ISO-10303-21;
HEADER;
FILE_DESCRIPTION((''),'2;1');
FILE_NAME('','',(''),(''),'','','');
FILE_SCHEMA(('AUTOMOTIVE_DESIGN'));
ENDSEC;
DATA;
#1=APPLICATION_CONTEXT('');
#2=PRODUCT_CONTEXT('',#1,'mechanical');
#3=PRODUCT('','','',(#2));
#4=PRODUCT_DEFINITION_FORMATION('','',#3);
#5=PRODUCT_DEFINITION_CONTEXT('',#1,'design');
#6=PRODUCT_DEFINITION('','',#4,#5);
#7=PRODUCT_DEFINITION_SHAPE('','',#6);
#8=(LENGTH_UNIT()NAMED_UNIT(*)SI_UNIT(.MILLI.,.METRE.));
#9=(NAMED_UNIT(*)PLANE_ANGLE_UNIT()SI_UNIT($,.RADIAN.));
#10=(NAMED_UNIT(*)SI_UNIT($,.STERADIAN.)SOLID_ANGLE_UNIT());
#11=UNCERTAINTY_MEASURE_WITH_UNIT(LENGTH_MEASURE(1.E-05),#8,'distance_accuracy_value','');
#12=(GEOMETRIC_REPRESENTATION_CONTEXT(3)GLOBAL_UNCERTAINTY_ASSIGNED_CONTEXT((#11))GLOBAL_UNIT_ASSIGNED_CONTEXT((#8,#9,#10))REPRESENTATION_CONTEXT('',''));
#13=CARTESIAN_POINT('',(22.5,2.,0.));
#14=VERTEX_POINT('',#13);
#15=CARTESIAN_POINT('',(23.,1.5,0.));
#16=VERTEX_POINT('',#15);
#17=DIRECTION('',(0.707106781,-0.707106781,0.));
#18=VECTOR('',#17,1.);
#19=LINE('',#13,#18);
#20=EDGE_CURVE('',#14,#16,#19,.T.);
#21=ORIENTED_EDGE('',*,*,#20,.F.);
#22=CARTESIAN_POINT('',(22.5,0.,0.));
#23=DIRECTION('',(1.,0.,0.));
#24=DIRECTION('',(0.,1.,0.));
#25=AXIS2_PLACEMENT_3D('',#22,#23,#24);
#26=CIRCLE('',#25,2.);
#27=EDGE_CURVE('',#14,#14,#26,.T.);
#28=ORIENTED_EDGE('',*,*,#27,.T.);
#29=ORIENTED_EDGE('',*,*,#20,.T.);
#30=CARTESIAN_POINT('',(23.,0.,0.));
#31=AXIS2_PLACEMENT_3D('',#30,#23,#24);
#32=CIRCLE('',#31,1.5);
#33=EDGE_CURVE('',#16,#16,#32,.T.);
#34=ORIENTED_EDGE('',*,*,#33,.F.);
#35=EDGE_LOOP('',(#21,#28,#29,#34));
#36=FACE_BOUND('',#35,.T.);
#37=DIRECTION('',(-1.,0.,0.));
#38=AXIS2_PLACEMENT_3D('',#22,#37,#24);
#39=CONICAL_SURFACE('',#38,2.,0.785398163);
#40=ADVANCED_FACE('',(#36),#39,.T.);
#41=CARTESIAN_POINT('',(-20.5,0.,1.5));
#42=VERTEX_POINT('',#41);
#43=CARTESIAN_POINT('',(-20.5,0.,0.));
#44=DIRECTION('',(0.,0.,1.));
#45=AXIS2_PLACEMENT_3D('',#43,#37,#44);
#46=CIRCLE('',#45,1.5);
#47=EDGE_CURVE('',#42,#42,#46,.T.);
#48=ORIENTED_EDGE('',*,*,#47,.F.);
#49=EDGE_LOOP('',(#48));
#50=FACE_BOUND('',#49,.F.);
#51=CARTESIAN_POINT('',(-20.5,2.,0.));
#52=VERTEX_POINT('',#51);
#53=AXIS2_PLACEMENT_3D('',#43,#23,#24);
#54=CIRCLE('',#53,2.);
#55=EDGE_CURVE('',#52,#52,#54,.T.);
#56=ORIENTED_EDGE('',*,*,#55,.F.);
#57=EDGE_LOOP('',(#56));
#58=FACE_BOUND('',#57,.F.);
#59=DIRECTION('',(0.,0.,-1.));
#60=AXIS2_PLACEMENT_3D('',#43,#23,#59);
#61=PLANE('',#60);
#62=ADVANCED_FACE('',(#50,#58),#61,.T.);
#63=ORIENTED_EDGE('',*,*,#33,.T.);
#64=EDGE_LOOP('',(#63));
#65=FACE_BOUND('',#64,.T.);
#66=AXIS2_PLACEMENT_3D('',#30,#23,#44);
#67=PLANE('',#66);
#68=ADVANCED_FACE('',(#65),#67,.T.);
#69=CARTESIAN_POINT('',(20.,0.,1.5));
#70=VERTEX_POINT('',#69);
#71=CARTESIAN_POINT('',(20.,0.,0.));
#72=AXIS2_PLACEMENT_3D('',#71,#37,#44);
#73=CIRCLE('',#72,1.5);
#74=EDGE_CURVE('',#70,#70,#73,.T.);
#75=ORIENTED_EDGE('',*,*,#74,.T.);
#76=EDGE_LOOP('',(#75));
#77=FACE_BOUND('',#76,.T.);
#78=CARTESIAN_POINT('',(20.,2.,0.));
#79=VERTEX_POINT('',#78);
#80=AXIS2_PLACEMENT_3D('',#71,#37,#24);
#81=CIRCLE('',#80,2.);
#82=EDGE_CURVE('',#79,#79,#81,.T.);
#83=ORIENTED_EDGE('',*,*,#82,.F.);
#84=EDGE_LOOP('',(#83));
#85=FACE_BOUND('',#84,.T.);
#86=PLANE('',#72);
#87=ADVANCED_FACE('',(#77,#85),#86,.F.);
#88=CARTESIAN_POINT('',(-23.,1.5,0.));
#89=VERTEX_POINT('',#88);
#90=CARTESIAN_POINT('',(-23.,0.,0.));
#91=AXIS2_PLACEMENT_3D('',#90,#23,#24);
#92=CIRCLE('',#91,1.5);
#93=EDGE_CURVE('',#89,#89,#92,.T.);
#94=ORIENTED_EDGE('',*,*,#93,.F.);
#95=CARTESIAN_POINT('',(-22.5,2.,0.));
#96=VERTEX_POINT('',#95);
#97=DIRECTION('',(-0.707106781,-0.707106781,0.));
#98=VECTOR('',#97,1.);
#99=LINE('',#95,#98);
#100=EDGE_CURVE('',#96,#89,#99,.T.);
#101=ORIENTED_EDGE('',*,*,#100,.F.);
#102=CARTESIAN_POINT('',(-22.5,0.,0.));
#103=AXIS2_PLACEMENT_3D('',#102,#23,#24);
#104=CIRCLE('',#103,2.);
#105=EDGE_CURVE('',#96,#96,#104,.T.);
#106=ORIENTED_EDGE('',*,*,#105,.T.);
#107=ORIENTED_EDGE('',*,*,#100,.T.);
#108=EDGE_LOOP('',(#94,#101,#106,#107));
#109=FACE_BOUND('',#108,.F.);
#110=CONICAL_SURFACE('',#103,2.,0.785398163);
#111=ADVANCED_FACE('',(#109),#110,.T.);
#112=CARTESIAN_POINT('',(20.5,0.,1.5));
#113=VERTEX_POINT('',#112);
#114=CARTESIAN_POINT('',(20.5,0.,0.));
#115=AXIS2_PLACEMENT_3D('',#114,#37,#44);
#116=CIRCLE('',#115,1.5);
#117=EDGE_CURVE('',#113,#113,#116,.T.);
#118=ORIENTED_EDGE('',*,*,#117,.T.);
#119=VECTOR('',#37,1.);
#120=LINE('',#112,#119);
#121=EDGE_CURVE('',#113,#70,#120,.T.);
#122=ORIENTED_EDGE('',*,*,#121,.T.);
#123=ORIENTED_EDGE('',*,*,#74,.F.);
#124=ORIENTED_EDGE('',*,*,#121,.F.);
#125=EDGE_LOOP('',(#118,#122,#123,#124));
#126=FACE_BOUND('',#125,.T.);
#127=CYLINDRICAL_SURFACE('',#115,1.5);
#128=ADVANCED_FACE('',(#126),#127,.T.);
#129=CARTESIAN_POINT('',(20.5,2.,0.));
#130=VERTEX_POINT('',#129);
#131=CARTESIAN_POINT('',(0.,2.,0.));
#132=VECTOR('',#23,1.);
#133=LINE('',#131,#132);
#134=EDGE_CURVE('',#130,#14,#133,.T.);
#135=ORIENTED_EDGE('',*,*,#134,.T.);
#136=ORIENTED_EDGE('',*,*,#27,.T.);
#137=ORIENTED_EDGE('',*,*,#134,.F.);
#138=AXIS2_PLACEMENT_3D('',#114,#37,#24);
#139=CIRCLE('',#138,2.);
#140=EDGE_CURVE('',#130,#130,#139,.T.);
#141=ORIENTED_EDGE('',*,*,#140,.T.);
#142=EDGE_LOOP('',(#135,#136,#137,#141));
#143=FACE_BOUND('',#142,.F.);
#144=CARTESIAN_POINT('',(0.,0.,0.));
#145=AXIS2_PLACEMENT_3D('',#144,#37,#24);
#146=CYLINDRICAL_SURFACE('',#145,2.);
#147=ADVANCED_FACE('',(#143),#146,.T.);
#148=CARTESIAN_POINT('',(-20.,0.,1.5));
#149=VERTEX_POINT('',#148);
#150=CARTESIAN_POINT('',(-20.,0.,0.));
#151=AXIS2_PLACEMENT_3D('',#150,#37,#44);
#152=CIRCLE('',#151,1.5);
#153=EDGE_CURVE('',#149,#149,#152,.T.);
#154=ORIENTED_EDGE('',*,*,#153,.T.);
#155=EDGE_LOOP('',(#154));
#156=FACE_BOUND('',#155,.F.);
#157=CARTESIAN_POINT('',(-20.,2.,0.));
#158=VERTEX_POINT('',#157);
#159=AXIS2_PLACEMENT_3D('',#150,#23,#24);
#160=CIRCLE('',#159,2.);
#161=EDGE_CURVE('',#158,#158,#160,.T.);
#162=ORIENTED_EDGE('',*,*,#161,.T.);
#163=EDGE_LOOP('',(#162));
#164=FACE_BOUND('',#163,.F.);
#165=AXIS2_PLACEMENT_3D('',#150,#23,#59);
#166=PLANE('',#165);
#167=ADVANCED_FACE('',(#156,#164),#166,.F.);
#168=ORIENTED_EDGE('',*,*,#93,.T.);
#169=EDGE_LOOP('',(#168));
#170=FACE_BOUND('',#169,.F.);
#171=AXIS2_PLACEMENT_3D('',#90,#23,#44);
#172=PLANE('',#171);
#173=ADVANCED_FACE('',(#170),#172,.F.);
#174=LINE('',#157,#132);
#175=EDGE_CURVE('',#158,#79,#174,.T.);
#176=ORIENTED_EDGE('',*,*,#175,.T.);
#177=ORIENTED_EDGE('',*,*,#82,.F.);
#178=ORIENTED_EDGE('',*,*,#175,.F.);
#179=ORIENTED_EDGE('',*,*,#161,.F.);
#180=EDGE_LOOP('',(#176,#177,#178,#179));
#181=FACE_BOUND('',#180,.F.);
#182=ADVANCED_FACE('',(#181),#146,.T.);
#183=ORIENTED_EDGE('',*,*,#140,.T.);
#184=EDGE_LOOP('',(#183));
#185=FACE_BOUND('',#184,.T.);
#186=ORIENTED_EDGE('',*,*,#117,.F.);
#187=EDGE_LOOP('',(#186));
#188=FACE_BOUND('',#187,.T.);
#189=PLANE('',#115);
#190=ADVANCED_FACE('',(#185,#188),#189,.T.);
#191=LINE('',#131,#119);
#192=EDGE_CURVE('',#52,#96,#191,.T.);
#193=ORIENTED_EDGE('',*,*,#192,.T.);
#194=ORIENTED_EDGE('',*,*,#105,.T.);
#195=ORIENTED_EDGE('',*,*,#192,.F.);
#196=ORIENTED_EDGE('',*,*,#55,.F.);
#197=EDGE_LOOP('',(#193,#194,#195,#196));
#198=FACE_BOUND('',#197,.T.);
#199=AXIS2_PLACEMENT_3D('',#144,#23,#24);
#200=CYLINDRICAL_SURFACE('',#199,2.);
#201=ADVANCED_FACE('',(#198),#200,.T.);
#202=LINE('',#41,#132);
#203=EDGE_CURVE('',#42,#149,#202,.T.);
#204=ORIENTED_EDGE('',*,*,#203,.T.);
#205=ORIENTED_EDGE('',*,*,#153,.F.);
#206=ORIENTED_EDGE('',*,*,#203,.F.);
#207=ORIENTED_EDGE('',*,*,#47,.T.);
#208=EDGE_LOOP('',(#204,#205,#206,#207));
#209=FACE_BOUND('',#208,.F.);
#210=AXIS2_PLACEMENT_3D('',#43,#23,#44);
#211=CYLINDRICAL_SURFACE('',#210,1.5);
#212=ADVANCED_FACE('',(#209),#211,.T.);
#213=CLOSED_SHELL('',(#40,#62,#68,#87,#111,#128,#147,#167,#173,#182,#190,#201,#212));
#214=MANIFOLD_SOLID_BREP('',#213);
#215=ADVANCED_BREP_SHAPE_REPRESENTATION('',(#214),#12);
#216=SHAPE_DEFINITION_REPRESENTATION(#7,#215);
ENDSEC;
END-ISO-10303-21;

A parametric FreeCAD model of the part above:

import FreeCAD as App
import Part
import Sketcher


def edges_at(feature, points):
    """Names of the edges that pass closest to the given points."""
    edges = feature.Shape.Edges
    near = lambda p: min(range(len(edges)), key=lambda i: edges[i].distToShape(Part.Vertex(*p))[0])
    return sorted({f"Edge{near(p) + 1}" for p in points})

doc = App.newDocument("Part")
body = doc.addObject("PartDesign::Body", "Body")

# Sketch on YZ plane
sketch1 = doc.addObject("Sketcher::SketchObject", "Sketch")
body.addObject(sketch1)
sketch1.AttachmentSupport = (doc.YZ_Plane, [""])
sketch1.MapMode = "FlatFace"
sketch1.addGeometry(Part.Circle(App.Vector(0, 0, 0), App.Vector(0, 0, 1), 2), False)
sketch1.addConstraint(Sketcher.Constraint("Coincident", 0, 3, -1, 1))
sketch1.addConstraint(Sketcher.Constraint("Diameter", 0, 4.0))
pad1 = doc.addObject("PartDesign::Pad", "Pad")
body.addObject(pad1)
pad1.Profile = sketch1
pad1.Length = 46
pad1.Midplane = True
doc.recompute()

chamfer = doc.addObject("PartDesign::Chamfer", "Chamfer")
body.addObject(chamfer)
chamfer.Base = (pad1, edges_at(pad1, [(23, -2, 0), (-23, -2, 0)]))
chamfer.Size = 0.5

# Sketch on XZ plane
sketch2 = doc.addObject("Sketcher::SketchObject", "Sketch001")
body.addObject(sketch2)
sketch2.AttachmentSupport = (doc.XZ_Plane, [""])
sketch2.MapMode = "FlatFace"
sketch2.addGeometry(Part.LineSegment(App.Vector(20.5, 1.5, 0), App.Vector(20.5, 2, 0)), False)
sketch2.addGeometry(Part.LineSegment(App.Vector(20.5, 2, 0), App.Vector(20, 2, 0)), False)
sketch2.addGeometry(Part.LineSegment(App.Vector(20, 2, 0), App.Vector(20, 1.5, 0)), False)
sketch2.addGeometry(Part.LineSegment(App.Vector(20, 1.5, 0), App.Vector(20.5, 1.5, 0)), False)
sketch2.addConstraint(Sketcher.Constraint("Coincident", 0, 2, 1, 1))
sketch2.addConstraint(Sketcher.Constraint("Coincident", 1, 2, 2, 1))
sketch2.addConstraint(Sketcher.Constraint("Coincident", 2, 2, 3, 1))
sketch2.addConstraint(Sketcher.Constraint("Coincident", 3, 2, 0, 1))
sketch2.addConstraint(Sketcher.Constraint("Vertical", 0))
sketch2.addConstraint(Sketcher.Constraint("Horizontal", 1))
sketch2.addConstraint(Sketcher.Constraint("Vertical", 2))
sketch2.addConstraint(Sketcher.Constraint("Horizontal", 3))
sketch2.addConstraint(Sketcher.Constraint("Equal", 3, 0))
sketch2.addConstraint(Sketcher.Constraint("DistanceX", 1, 2, 1, 1, 0.5))
sketch2.addConstraint(Sketcher.Constraint("DistanceY", -1, 1, 0, 2, 2.0))
sketch2.addConstraint(Sketcher.Constraint("DistanceX", -1, 1, 1, 2, 20.0))
groove = doc.addObject("PartDesign::Groove", "Groove")
body.addObject(groove)
groove.Profile = sketch2
groove.ReferenceAxis = (sketch2, ["H_Axis"])
groove.Angle = 360
doc.recompute()

mirrored = doc.addObject("PartDesign::Mirrored", "Mirrored")
body.addObject(mirrored)
mirrored.Originals = [groove]
mirrored.MirrorPlane = (doc.YZ_Plane, [""])
body.Tip = mirrored

doc.recompute()
